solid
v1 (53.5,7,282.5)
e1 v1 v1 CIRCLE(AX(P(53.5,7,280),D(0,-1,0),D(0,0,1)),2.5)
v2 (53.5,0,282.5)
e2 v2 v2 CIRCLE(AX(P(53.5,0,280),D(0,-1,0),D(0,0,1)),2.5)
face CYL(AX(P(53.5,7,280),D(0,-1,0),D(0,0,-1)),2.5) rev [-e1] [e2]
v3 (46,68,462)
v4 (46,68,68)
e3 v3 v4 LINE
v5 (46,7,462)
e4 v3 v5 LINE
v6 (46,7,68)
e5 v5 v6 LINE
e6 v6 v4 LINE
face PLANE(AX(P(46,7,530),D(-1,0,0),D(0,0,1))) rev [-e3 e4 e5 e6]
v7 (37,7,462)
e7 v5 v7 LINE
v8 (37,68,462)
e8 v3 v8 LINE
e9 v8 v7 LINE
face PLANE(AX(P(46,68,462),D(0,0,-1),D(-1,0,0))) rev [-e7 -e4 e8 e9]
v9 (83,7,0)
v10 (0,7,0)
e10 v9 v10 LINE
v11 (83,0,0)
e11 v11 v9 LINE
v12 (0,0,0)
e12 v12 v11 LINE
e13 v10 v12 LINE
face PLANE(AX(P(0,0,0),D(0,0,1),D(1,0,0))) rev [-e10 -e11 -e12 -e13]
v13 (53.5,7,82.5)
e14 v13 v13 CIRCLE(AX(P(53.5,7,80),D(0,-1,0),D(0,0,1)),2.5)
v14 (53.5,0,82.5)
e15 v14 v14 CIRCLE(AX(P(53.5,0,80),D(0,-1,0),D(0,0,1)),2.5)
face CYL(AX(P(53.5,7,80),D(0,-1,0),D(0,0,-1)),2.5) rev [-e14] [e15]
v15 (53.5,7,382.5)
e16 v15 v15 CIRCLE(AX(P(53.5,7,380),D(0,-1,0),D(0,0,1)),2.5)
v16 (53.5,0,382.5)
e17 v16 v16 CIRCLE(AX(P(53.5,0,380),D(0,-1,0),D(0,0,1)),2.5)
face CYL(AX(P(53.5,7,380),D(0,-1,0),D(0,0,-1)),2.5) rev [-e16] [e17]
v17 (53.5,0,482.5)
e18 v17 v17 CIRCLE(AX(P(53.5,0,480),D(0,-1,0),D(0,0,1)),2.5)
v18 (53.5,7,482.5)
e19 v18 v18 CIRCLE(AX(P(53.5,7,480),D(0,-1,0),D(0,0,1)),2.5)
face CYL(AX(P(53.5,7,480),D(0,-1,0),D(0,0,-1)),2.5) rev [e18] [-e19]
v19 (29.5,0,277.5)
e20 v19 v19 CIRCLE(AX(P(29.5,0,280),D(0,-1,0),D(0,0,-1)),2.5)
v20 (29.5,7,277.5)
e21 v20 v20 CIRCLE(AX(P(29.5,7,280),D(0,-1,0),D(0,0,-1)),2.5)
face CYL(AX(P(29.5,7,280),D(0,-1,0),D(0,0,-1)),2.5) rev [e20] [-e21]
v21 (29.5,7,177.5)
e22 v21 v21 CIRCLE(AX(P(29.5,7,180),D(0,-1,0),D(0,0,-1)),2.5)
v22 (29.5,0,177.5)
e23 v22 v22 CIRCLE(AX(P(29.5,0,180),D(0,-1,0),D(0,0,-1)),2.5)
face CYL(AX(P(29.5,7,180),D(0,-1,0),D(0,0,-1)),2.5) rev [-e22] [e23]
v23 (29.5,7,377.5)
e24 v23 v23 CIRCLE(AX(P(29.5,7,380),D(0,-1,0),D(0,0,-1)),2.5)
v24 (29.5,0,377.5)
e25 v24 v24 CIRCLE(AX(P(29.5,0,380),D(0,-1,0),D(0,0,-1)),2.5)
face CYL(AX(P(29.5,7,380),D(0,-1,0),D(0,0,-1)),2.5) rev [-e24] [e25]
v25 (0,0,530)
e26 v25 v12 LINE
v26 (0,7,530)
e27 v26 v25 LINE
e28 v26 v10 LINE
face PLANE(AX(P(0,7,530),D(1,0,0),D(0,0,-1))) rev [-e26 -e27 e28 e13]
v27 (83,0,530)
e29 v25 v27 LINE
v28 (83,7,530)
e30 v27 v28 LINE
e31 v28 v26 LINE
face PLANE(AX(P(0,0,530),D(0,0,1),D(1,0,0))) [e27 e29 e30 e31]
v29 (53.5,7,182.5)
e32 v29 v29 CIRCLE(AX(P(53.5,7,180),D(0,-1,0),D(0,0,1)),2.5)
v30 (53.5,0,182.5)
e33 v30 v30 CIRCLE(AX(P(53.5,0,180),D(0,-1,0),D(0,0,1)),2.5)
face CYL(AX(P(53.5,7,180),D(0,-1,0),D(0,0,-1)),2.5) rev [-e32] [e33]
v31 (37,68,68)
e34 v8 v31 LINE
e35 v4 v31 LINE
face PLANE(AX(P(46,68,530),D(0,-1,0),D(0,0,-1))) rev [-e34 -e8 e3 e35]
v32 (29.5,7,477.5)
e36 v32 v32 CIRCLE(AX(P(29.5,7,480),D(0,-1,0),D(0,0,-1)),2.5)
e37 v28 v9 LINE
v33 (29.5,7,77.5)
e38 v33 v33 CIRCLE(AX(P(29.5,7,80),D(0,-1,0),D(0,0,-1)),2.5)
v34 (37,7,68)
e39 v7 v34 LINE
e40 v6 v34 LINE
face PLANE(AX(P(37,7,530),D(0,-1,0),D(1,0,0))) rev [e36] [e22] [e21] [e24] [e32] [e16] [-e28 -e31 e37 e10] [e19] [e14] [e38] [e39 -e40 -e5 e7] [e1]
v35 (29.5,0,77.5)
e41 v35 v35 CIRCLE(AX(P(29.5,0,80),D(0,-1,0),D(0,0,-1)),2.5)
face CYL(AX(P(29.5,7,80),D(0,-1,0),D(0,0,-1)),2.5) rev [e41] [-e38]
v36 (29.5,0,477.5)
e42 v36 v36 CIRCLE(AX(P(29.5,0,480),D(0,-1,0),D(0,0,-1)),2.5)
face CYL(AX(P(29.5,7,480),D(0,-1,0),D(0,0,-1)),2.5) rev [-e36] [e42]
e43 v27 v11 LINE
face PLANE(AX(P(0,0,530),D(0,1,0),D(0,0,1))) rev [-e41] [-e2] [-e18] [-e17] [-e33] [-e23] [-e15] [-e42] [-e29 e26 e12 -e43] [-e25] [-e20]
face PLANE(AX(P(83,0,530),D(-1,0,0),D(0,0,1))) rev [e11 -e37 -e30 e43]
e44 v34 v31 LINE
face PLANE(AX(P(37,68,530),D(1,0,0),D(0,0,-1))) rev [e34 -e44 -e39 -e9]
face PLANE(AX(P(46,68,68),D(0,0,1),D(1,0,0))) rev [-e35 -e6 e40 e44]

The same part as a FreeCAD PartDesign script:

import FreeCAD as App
import Part
import Sketcher

V = App.Vector
Q = App.Units.Quantity


def add_polygon(sketch, points):
    """Adds a closed chain of lines whose ends are joined by coincident constraints."""
    first, n = sketch.GeometryCount, len(points)
    for a, b in zip(points, points[1:] + points[:1]):
        sketch.addGeometry(Part.LineSegment(App.Vector(*a, 0), App.Vector(*b, 0)), False)
    for i in range(n):
        sketch.addConstraint(Sketcher.Constraint("Coincident", first + i, 2, first + (i + 1) % n, 1))

doc = App.newDocument("Part")
body = doc.addObject("PartDesign::Body", "Body")

# Sketch on XY plane
sketch1 = body.newObject("Sketcher::SketchObject", "Sketch")
sketch1.AttachmentSupport = (doc.getObject("XY_Plane"), [""])
sketch1.MapMode = "FlatFace"
add_polygon(sketch1, [(0, 0), (83, 0), (83, 7), (46, 7), (46, 68), (37, 68), (37, 7), (0, 7)])  # lines 0-7
sketch1.addConstraint([
    Sketcher.Constraint("Horizontal", 0),
    Sketcher.Constraint("Vertical", 1),
    Sketcher.Constraint("Horizontal", 2),
    Sketcher.Constraint("Vertical", 3),
    Sketcher.Constraint("Horizontal", 4),
    Sketcher.Constraint("Vertical", 5),
    Sketcher.Constraint("Horizontal", 6),
    Sketcher.Constraint("Vertical", 7),
    Sketcher.Constraint("Coincident", 7, 2, -1, 1),
    Sketcher.Constraint("Horizontal", 2, 2, 5, 2),
    Sketcher.Constraint("Equal", 2, 6),
    Sketcher.Constraint("DistanceX", 0, 1, 0, 2, Q("83 mm")),
    Sketcher.Constraint("DistanceX", 2, 2, 2, 1, Q("37 mm")),
    Sketcher.Constraint("DistanceY", 1, 1, 1, 2, Q("7 mm")),
    Sketcher.Constraint("DistanceY", 3, 1, 3, 2, Q("61 mm")),
])
pad1 = body.newObject("PartDesign::Pad", "Pad")
pad1.Profile = sketch1
pad1.Length = 530

# Sketch on YZ plane
sketch2 = body.newObject("Sketcher::SketchObject", "Sketch001")
sketch2.AttachmentSupport = (doc.getObject("YZ_Plane"), [""])
sketch2.MapMode = "FlatFace"
sketch2.AttachmentOffset = App.Placement(V(0, 0, 37), App.Rotation())
add_polygon(sketch2, [(68, 0), (7, 0), (7, 68), (68, 68)])  # lines 0-3
add_polygon(sketch2, [(68, 462), (7, 462), (7, 530), (68, 530)])  # lines 4-7
sketch2.addConstraint([
    Sketcher.Constraint("Horizontal", 0),
    Sketcher.Constraint("Vertical", 1),
    Sketcher.Constraint("Horizontal", 2),
    Sketcher.Constraint("Vertical", 3),
    Sketcher.Constraint("Horizontal", 4),
    Sketcher.Constraint("Vertical", 5),
    Sketcher.Constraint("Horizontal", 6),
    Sketcher.Constraint("Vertical", 7),
    Sketcher.Constraint("PointOnObject", 0, 2, -1),
    Sketcher.Constraint("Vertical", 1, 2, 4, 2),
    Sketcher.Constraint("Vertical", 3, 2, 6, 2),
    Sketcher.Constraint("Equal", 3, 5),
    Sketcher.Constraint("DistanceX", 0, 2, 0, 1, Q("61 mm")),
    Sketcher.Constraint("DistanceY", 1, 1, 1, 2, Q("68 mm")),
    Sketcher.Constraint("DistanceX", -1, 1, 0, 2, Q("7 mm")),
    Sketcher.Constraint("DistanceY", -1, 1, 4, 2, Q("462 mm")),
])
pocket1 = body.newObject("PartDesign::Pocket", "Pocket")
pocket1.Profile = sketch2
pocket1.Length = 9
pocket1.Reversed = True

# Sketch on XZ plane
sketch3 = body.newObject("Sketcher::SketchObject", "Sketch002")
sketch3.AttachmentSupport = (doc.getObject("XZ_Plane"), [""])
sketch3.MapMode = "FlatFace"
sketch3.addGeometry([
    Part.Circle(V(29.5, 80, 0), V(0, 0, 1), 2.5),  # 0
    Part.Circle(V(53.5, 80, 0), V(0, 0, 1), 2.5),  # 1
    Part.Circle(V(29.5, 180, 0), V(0, 0, 1), 2.5),  # 2
    Part.Circle(V(53.5, 180, 0), V(0, 0, 1), 2.5),  # 3
    Part.Circle(V(29.5, 280, 0), V(0, 0, 1), 2.5),  # 4
    Part.Circle(V(53.5, 280, 0), V(0, 0, 1), 2.5),  # 5
    Part.Circle(V(29.5, 380, 0), V(0, 0, 1), 2.5),  # 6
    Part.Circle(V(53.5, 380, 0), V(0, 0, 1), 2.5),  # 7
    Part.Circle(V(29.5, 480, 0), V(0, 0, 1), 2.5),  # 8
    Part.Circle(V(53.5, 480, 0), V(0, 0, 1), 2.5),  # 9
], False)
sketch3.addConstraint([
    Sketcher.Constraint("Equal", 0, 1),
    Sketcher.Constraint("Equal", 1, 2),
    Sketcher.Constraint("Equal", 2, 3),
    Sketcher.Constraint("Equal", 3, 4),
    Sketcher.Constraint("Equal", 4, 5),
    Sketcher.Constraint("Equal", 5, 6),
    Sketcher.Constraint("Equal", 6, 7),
    Sketcher.Constraint("Equal", 7, 8),
    Sketcher.Constraint("Equal", 8, 9),
    Sketcher.Constraint("Horizontal", 0, 3, 1, 3),
    Sketcher.Constraint("Horizontal", 2, 3, 3, 3),
    Sketcher.Constraint("Horizontal", 4, 3, 5, 3),
    Sketcher.Constraint("Horizontal", 6, 3, 7, 3),
    Sketcher.Constraint("Horizontal", 8, 3, 9, 3),
    Sketcher.Constraint("Vertical", 0, 3, 2, 3),
    Sketcher.Constraint("Vertical", 1, 3, 3, 3),
    Sketcher.Constraint("Vertical", 2, 3, 4, 3),
    Sketcher.Constraint("Vertical", 3, 3, 5, 3),
    Sketcher.Constraint("Vertical", 4, 3, 6, 3),
    Sketcher.Constraint("Vertical", 5, 3, 7, 3),
    Sketcher.Constraint("Vertical", 6, 3, 8, 3),
    Sketcher.Constraint("Vertical", 7, 3, 9, 3),
    Sketcher.Constraint("Diameter", 0, Q("5 mm")),
    Sketcher.Constraint("DistanceY", -1, 1, 0, 3, Q("80 mm")),
    Sketcher.Constraint("DistanceY", -1, 1, 2, 3, Q("180 mm")),
    Sketcher.Constraint("DistanceY", -1, 1, 4, 3, Q("280 mm")),
    Sketcher.Constraint("DistanceY", -1, 1, 6, 3, Q("380 mm")),
    Sketcher.Constraint("DistanceY", -1, 1, 8, 3, Q("480 mm")),
    Sketcher.Constraint("DistanceX", 0, 3, 1, 3, Q("24 mm")),
    Sketcher.Constraint("DistanceX", -1, 1, 0, 3, Q("29.5 mm")),
])
pocket2 = body.newObject("PartDesign::Pocket", "Pocket001")
pocket2.Profile = sketch3
pocket2.Length = 7

doc.recompute()
